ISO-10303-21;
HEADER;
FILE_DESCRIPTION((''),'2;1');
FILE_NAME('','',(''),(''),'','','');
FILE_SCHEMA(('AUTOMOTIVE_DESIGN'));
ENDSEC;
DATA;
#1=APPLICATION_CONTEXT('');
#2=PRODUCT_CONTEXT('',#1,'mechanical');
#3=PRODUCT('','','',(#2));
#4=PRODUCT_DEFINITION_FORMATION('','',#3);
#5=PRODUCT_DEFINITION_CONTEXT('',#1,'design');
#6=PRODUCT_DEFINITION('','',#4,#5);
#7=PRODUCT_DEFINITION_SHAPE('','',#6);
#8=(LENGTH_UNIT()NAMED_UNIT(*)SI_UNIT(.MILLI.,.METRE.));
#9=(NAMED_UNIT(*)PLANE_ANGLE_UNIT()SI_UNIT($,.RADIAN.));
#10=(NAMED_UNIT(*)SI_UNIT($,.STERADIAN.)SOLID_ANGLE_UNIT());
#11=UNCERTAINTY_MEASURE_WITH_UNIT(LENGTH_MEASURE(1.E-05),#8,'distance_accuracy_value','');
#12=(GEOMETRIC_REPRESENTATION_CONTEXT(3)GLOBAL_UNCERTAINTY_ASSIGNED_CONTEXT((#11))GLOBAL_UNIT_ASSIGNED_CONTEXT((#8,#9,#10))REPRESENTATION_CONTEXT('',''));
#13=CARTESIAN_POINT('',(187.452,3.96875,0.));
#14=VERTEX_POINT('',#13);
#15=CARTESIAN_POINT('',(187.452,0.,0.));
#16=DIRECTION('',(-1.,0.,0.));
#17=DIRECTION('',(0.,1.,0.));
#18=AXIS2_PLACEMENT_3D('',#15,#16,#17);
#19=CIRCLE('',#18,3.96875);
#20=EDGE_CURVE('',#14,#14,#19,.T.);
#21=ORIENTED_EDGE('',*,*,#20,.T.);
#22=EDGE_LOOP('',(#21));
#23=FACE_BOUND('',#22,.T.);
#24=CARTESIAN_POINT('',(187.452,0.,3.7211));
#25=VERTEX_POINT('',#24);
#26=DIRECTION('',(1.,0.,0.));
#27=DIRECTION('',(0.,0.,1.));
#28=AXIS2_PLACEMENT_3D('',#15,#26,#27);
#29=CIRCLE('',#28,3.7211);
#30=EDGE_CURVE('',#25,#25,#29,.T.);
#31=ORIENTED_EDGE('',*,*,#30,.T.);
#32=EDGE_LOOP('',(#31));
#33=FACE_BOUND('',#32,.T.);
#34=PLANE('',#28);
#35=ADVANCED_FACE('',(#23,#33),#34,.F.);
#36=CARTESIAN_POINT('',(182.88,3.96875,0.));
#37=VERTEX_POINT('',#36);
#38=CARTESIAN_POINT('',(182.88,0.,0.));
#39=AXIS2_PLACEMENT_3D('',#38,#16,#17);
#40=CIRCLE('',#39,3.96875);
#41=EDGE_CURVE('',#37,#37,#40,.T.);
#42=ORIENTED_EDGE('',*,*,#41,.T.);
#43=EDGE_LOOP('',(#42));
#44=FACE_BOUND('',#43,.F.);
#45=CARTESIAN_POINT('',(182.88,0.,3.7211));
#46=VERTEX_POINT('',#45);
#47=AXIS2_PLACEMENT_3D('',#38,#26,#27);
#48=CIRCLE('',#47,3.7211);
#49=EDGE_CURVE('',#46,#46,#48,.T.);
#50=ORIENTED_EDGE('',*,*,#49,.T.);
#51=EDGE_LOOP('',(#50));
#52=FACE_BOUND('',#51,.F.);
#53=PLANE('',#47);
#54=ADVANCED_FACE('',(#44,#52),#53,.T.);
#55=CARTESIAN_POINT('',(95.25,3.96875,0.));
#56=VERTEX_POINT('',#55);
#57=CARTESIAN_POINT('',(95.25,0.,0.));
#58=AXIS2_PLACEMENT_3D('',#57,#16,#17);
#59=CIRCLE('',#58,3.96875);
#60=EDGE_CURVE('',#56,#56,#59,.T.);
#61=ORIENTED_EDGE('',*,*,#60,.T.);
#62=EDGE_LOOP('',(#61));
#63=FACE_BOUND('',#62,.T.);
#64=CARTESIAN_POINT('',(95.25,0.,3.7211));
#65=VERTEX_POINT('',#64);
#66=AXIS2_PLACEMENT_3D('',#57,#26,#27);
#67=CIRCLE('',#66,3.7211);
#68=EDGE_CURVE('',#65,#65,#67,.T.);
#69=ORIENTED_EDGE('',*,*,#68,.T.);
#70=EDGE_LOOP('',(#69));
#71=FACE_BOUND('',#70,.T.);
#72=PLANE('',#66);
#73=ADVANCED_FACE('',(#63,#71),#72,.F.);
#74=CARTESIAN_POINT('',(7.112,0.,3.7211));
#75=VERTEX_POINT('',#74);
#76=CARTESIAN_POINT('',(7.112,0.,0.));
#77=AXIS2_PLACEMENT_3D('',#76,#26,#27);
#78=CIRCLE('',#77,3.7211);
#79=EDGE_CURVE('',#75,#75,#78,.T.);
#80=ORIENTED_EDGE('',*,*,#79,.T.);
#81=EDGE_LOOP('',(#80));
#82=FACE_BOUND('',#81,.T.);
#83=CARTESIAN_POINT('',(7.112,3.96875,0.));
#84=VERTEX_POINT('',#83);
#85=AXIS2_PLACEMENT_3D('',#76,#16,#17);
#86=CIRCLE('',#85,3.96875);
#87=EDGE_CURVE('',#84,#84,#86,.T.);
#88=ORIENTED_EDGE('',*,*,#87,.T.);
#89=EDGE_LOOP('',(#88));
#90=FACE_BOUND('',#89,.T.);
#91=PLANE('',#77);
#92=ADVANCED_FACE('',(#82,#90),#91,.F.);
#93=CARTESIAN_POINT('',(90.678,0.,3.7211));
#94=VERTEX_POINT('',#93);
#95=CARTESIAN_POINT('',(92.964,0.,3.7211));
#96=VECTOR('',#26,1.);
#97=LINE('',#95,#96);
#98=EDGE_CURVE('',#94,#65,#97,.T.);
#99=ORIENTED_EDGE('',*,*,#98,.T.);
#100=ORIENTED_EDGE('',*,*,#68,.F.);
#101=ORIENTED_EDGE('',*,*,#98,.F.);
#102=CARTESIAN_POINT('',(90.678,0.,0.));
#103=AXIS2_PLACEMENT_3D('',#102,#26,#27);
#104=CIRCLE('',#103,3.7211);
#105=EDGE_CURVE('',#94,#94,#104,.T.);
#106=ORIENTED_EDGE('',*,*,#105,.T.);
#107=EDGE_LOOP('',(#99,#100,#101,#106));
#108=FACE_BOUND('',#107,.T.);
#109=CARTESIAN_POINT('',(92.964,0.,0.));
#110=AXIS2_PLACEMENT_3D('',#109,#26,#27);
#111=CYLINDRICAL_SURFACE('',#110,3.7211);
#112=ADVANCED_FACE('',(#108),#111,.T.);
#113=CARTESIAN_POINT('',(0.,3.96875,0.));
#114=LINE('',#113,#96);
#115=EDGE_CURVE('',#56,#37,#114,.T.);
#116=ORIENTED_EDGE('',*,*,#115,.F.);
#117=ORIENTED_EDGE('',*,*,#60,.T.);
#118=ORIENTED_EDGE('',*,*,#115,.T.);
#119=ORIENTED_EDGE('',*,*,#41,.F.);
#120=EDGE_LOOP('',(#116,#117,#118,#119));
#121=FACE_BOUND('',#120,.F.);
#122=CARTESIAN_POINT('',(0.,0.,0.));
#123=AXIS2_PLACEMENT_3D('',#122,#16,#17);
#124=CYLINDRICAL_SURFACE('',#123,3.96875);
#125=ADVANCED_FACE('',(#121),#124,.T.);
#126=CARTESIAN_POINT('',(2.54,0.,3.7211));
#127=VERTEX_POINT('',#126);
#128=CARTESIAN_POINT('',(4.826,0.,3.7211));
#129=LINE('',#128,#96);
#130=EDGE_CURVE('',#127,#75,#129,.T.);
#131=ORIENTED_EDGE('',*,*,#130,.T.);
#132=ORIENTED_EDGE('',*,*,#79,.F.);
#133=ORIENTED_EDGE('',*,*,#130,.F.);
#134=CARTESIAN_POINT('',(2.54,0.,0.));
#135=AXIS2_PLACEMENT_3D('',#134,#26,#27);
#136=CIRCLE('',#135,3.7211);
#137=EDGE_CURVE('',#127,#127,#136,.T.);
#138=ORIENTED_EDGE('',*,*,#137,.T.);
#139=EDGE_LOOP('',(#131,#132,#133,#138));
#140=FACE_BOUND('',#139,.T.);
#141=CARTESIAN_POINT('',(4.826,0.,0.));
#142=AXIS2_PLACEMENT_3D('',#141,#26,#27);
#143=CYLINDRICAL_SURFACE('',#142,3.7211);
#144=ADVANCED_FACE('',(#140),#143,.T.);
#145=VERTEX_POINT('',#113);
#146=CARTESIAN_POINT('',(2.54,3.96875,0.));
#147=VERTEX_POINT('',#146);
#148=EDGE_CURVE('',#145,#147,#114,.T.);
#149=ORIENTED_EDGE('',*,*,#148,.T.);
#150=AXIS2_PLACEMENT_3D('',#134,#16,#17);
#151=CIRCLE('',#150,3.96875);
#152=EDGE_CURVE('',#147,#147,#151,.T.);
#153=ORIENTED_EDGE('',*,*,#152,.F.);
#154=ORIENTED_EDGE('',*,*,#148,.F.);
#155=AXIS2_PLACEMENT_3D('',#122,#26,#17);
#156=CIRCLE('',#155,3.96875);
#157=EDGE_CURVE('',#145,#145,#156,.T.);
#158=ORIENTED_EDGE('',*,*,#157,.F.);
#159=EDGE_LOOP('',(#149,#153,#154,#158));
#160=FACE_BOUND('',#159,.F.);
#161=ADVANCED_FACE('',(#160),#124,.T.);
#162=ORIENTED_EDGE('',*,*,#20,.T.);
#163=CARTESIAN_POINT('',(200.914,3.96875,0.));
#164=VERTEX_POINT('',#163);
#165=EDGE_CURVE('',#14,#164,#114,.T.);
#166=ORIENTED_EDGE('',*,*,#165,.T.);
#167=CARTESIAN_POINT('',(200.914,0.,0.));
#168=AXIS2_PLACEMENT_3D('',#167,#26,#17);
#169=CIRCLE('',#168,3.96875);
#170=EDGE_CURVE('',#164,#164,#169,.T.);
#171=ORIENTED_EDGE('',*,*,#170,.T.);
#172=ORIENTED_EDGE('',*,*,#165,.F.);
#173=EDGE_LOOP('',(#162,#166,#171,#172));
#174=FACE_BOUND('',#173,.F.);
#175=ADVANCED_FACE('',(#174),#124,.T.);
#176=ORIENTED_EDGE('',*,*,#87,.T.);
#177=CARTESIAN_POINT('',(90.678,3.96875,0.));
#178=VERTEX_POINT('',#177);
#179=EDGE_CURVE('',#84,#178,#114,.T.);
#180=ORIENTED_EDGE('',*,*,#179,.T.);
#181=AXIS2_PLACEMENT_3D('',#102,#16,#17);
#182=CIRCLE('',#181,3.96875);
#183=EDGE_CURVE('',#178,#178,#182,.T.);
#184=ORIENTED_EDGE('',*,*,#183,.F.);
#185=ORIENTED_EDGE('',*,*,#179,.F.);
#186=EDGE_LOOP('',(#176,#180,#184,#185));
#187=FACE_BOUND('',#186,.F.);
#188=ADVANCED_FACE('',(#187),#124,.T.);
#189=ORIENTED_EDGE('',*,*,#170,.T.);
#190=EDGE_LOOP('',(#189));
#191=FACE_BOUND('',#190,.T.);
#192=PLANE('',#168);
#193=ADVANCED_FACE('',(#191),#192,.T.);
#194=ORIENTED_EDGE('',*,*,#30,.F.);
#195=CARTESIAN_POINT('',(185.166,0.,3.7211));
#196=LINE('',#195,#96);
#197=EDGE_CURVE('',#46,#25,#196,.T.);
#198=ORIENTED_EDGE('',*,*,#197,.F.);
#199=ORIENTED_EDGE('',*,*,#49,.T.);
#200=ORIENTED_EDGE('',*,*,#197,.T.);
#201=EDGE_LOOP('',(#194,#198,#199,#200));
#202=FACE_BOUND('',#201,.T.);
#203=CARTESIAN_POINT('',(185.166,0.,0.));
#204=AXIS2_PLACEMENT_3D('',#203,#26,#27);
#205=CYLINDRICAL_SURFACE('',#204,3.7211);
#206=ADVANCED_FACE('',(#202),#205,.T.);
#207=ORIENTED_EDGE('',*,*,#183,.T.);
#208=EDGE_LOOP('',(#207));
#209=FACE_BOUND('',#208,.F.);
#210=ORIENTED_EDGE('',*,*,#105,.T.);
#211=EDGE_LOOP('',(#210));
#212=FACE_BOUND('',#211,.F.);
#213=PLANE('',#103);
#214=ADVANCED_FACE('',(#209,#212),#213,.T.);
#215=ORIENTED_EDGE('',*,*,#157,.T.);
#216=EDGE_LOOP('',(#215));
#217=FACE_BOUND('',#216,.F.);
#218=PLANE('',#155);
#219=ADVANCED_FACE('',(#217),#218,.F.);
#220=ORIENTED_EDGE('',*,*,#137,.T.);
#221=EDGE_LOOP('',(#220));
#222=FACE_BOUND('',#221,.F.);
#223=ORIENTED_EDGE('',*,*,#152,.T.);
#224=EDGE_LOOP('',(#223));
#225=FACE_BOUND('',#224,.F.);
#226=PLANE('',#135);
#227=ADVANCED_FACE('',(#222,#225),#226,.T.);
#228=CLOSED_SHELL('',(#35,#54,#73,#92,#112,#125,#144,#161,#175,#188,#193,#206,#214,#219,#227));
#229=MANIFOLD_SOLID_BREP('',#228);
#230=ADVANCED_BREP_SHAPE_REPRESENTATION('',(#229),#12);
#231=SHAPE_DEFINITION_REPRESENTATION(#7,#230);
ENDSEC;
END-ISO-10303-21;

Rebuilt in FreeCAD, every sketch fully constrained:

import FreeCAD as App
import Part
import Sketcher
from FreeCAD import Vector
Q = App.Units.Quantity


def add_polygon(sketch, points):
    """Adds a closed chain of lines whose ends are joined by coincident constraints."""
    first, n = sketch.GeometryCount, len(points)
    for a, b in zip(points, points[1:] + points[:1]):
        sketch.addGeometry(Part.LineSegment(App.Vector(*a, 0), App.Vector(*b, 0)), False)
    for i in range(n):
        sketch.addConstraint(Sketcher.Constraint("Coincident", first + i, 2, first + (i + 1) % n, 1))

doc = App.newDocument("Part")
params = doc.addObject("Spreadsheet::Sheet", "Params")
for row, (alias, value) in enumerate([
    ("sketch1_diameter", "0.3125 in"),
    ("pad1_length", "7.91 in"),
    ("sketch2_width", "0.18 in"),
    ("groove_angle", "360 deg"),
], start=1):
    params.set(f"A{row}", alias)
    params.set(f"B{row}", "=" + value)
    params.setAlias(f"B{row}", alias)

body = doc.addObject("PartDesign::Body", "Body")

# Sketch on YZ plane
sketch1 = body.newObject("Sketcher::SketchObject", "Sketch")
sketch1.AttachmentSupport = (doc.getObject("YZ_Plane"), [""])
sketch1.MapMode = "FlatFace"
sketch1.addGeometry(Part.Circle(Vector(0, 0, 0), Vector(0, 0, 1), 4), False)
sketch1.addConstraint(Sketcher.Constraint("Coincident", 0, 3, -1, 1))
sketch1.addConstraint(Sketcher.Constraint("Diameter", 0, Q("0.3125 in")))
sketch1.setExpression("Constraints[1]", "Params.sketch1_diameter")
pad1 = body.newObject("PartDesign::Pad", "Pad")
pad1.Profile = sketch1
pad1.setExpression("Length", "Params.pad1_length")

# Sketch on XZ plane
sketch2 = body.newObject("Sketcher::SketchObject", "Sketch001")
sketch2.AttachmentSupport = (doc.getObject("XZ_Plane"), [""])
sketch2.MapMode = "FlatFace"
add_polygon(sketch2, [(182.88, 3.97), (182.88, 3.72), (187.45, 3.72), (187.45, 3.97)])  # lines 0-3
add_polygon(sketch2, [(90.68, 3.97), (90.68, 3.72), (95.25, 3.72), (95.25, 3.97)])  # lines 4-7
add_polygon(sketch2, [(2.54, 3.97), (2.54, 3.72), (7.11, 3.72), (7.11, 3.97)])  # lines 8-11
sketch2.addConstraint(Sketcher.Constraint("Vertical", 0))
sketch2.addConstraint(Sketcher.Constraint("Horizontal", 1))
sketch2.addConstraint(Sketcher.Constraint("Vertical", 2))
sketch2.addConstraint(Sketcher.Constraint("Horizontal", 3))
sketch2.addConstraint(Sketcher.Constraint("Vertical", 4))
sketch2.addConstraint(Sketcher.Constraint("Horizontal", 5))
sketch2.addConstraint(Sketcher.Constraint("Vertical", 6))
sketch2.addConstraint(Sketcher.Constraint("Horizontal", 7))
sketch2.addConstraint(Sketcher.Constraint("Vertical", 8))
sketch2.addConstraint(Sketcher.Constraint("Horizontal", 9))
sketch2.addConstraint(Sketcher.Constraint("Vertical", 10))
sketch2.addConstraint(Sketcher.Constraint("Horizontal", 11))
sketch2.addConstraint(Sketcher.Constraint("Horizontal", 1, 2, 4, 2))
sketch2.addConstraint(Sketcher.Constraint("Horizontal", 3, 2, 6, 2))
sketch2.addConstraint(Sketcher.Constraint("Horizontal", 5, 2, 8, 2))
sketch2.addConstraint(Sketcher.Constraint("Horizontal", 7, 2, 10, 2))
sketch2.addConstraint(Sketcher.Constraint("Equal", 3, 5))
sketch2.addConstraint(Sketcher.Constraint("Equal", 7, 9))
sketch2.addConstraint(Sketcher.Constraint("DistanceX", 1, 1, 1, 2, Q("0.18 in")))
sketch2.addConstraint(Sketcher.Constraint("DistanceX", -1, 1, 0, 2, Q("7.2 in")))
sketch2.addConstraint(Sketcher.Constraint("DistanceX", -1, 1, 8, 2, Q("0.1 in")))
sketch2.addConstraint(Sketcher.Constraint("DistanceX", -1, 1, 4, 2, Q("3.57 in")))
sketch2.addConstraint(Sketcher.Constraint("DistanceY", -1, 1, 2, 2, Q("0.15625 in")))
sketch2.addConstraint(Sketcher.Constraint("DistanceY", -1, 1, 0, 2, Q("0.1465 in")))
sketch2.setExpression("Constraints[30]", "Params.sketch2_width")
groove = body.newObject("PartDesign::Groove", "Groove")
groove.Profile = sketch2
groove.ReferenceAxis = (sketch2, ["H_Axis"])
groove.setExpression("Angle", "Params.groove_angle")

doc.recompute()
